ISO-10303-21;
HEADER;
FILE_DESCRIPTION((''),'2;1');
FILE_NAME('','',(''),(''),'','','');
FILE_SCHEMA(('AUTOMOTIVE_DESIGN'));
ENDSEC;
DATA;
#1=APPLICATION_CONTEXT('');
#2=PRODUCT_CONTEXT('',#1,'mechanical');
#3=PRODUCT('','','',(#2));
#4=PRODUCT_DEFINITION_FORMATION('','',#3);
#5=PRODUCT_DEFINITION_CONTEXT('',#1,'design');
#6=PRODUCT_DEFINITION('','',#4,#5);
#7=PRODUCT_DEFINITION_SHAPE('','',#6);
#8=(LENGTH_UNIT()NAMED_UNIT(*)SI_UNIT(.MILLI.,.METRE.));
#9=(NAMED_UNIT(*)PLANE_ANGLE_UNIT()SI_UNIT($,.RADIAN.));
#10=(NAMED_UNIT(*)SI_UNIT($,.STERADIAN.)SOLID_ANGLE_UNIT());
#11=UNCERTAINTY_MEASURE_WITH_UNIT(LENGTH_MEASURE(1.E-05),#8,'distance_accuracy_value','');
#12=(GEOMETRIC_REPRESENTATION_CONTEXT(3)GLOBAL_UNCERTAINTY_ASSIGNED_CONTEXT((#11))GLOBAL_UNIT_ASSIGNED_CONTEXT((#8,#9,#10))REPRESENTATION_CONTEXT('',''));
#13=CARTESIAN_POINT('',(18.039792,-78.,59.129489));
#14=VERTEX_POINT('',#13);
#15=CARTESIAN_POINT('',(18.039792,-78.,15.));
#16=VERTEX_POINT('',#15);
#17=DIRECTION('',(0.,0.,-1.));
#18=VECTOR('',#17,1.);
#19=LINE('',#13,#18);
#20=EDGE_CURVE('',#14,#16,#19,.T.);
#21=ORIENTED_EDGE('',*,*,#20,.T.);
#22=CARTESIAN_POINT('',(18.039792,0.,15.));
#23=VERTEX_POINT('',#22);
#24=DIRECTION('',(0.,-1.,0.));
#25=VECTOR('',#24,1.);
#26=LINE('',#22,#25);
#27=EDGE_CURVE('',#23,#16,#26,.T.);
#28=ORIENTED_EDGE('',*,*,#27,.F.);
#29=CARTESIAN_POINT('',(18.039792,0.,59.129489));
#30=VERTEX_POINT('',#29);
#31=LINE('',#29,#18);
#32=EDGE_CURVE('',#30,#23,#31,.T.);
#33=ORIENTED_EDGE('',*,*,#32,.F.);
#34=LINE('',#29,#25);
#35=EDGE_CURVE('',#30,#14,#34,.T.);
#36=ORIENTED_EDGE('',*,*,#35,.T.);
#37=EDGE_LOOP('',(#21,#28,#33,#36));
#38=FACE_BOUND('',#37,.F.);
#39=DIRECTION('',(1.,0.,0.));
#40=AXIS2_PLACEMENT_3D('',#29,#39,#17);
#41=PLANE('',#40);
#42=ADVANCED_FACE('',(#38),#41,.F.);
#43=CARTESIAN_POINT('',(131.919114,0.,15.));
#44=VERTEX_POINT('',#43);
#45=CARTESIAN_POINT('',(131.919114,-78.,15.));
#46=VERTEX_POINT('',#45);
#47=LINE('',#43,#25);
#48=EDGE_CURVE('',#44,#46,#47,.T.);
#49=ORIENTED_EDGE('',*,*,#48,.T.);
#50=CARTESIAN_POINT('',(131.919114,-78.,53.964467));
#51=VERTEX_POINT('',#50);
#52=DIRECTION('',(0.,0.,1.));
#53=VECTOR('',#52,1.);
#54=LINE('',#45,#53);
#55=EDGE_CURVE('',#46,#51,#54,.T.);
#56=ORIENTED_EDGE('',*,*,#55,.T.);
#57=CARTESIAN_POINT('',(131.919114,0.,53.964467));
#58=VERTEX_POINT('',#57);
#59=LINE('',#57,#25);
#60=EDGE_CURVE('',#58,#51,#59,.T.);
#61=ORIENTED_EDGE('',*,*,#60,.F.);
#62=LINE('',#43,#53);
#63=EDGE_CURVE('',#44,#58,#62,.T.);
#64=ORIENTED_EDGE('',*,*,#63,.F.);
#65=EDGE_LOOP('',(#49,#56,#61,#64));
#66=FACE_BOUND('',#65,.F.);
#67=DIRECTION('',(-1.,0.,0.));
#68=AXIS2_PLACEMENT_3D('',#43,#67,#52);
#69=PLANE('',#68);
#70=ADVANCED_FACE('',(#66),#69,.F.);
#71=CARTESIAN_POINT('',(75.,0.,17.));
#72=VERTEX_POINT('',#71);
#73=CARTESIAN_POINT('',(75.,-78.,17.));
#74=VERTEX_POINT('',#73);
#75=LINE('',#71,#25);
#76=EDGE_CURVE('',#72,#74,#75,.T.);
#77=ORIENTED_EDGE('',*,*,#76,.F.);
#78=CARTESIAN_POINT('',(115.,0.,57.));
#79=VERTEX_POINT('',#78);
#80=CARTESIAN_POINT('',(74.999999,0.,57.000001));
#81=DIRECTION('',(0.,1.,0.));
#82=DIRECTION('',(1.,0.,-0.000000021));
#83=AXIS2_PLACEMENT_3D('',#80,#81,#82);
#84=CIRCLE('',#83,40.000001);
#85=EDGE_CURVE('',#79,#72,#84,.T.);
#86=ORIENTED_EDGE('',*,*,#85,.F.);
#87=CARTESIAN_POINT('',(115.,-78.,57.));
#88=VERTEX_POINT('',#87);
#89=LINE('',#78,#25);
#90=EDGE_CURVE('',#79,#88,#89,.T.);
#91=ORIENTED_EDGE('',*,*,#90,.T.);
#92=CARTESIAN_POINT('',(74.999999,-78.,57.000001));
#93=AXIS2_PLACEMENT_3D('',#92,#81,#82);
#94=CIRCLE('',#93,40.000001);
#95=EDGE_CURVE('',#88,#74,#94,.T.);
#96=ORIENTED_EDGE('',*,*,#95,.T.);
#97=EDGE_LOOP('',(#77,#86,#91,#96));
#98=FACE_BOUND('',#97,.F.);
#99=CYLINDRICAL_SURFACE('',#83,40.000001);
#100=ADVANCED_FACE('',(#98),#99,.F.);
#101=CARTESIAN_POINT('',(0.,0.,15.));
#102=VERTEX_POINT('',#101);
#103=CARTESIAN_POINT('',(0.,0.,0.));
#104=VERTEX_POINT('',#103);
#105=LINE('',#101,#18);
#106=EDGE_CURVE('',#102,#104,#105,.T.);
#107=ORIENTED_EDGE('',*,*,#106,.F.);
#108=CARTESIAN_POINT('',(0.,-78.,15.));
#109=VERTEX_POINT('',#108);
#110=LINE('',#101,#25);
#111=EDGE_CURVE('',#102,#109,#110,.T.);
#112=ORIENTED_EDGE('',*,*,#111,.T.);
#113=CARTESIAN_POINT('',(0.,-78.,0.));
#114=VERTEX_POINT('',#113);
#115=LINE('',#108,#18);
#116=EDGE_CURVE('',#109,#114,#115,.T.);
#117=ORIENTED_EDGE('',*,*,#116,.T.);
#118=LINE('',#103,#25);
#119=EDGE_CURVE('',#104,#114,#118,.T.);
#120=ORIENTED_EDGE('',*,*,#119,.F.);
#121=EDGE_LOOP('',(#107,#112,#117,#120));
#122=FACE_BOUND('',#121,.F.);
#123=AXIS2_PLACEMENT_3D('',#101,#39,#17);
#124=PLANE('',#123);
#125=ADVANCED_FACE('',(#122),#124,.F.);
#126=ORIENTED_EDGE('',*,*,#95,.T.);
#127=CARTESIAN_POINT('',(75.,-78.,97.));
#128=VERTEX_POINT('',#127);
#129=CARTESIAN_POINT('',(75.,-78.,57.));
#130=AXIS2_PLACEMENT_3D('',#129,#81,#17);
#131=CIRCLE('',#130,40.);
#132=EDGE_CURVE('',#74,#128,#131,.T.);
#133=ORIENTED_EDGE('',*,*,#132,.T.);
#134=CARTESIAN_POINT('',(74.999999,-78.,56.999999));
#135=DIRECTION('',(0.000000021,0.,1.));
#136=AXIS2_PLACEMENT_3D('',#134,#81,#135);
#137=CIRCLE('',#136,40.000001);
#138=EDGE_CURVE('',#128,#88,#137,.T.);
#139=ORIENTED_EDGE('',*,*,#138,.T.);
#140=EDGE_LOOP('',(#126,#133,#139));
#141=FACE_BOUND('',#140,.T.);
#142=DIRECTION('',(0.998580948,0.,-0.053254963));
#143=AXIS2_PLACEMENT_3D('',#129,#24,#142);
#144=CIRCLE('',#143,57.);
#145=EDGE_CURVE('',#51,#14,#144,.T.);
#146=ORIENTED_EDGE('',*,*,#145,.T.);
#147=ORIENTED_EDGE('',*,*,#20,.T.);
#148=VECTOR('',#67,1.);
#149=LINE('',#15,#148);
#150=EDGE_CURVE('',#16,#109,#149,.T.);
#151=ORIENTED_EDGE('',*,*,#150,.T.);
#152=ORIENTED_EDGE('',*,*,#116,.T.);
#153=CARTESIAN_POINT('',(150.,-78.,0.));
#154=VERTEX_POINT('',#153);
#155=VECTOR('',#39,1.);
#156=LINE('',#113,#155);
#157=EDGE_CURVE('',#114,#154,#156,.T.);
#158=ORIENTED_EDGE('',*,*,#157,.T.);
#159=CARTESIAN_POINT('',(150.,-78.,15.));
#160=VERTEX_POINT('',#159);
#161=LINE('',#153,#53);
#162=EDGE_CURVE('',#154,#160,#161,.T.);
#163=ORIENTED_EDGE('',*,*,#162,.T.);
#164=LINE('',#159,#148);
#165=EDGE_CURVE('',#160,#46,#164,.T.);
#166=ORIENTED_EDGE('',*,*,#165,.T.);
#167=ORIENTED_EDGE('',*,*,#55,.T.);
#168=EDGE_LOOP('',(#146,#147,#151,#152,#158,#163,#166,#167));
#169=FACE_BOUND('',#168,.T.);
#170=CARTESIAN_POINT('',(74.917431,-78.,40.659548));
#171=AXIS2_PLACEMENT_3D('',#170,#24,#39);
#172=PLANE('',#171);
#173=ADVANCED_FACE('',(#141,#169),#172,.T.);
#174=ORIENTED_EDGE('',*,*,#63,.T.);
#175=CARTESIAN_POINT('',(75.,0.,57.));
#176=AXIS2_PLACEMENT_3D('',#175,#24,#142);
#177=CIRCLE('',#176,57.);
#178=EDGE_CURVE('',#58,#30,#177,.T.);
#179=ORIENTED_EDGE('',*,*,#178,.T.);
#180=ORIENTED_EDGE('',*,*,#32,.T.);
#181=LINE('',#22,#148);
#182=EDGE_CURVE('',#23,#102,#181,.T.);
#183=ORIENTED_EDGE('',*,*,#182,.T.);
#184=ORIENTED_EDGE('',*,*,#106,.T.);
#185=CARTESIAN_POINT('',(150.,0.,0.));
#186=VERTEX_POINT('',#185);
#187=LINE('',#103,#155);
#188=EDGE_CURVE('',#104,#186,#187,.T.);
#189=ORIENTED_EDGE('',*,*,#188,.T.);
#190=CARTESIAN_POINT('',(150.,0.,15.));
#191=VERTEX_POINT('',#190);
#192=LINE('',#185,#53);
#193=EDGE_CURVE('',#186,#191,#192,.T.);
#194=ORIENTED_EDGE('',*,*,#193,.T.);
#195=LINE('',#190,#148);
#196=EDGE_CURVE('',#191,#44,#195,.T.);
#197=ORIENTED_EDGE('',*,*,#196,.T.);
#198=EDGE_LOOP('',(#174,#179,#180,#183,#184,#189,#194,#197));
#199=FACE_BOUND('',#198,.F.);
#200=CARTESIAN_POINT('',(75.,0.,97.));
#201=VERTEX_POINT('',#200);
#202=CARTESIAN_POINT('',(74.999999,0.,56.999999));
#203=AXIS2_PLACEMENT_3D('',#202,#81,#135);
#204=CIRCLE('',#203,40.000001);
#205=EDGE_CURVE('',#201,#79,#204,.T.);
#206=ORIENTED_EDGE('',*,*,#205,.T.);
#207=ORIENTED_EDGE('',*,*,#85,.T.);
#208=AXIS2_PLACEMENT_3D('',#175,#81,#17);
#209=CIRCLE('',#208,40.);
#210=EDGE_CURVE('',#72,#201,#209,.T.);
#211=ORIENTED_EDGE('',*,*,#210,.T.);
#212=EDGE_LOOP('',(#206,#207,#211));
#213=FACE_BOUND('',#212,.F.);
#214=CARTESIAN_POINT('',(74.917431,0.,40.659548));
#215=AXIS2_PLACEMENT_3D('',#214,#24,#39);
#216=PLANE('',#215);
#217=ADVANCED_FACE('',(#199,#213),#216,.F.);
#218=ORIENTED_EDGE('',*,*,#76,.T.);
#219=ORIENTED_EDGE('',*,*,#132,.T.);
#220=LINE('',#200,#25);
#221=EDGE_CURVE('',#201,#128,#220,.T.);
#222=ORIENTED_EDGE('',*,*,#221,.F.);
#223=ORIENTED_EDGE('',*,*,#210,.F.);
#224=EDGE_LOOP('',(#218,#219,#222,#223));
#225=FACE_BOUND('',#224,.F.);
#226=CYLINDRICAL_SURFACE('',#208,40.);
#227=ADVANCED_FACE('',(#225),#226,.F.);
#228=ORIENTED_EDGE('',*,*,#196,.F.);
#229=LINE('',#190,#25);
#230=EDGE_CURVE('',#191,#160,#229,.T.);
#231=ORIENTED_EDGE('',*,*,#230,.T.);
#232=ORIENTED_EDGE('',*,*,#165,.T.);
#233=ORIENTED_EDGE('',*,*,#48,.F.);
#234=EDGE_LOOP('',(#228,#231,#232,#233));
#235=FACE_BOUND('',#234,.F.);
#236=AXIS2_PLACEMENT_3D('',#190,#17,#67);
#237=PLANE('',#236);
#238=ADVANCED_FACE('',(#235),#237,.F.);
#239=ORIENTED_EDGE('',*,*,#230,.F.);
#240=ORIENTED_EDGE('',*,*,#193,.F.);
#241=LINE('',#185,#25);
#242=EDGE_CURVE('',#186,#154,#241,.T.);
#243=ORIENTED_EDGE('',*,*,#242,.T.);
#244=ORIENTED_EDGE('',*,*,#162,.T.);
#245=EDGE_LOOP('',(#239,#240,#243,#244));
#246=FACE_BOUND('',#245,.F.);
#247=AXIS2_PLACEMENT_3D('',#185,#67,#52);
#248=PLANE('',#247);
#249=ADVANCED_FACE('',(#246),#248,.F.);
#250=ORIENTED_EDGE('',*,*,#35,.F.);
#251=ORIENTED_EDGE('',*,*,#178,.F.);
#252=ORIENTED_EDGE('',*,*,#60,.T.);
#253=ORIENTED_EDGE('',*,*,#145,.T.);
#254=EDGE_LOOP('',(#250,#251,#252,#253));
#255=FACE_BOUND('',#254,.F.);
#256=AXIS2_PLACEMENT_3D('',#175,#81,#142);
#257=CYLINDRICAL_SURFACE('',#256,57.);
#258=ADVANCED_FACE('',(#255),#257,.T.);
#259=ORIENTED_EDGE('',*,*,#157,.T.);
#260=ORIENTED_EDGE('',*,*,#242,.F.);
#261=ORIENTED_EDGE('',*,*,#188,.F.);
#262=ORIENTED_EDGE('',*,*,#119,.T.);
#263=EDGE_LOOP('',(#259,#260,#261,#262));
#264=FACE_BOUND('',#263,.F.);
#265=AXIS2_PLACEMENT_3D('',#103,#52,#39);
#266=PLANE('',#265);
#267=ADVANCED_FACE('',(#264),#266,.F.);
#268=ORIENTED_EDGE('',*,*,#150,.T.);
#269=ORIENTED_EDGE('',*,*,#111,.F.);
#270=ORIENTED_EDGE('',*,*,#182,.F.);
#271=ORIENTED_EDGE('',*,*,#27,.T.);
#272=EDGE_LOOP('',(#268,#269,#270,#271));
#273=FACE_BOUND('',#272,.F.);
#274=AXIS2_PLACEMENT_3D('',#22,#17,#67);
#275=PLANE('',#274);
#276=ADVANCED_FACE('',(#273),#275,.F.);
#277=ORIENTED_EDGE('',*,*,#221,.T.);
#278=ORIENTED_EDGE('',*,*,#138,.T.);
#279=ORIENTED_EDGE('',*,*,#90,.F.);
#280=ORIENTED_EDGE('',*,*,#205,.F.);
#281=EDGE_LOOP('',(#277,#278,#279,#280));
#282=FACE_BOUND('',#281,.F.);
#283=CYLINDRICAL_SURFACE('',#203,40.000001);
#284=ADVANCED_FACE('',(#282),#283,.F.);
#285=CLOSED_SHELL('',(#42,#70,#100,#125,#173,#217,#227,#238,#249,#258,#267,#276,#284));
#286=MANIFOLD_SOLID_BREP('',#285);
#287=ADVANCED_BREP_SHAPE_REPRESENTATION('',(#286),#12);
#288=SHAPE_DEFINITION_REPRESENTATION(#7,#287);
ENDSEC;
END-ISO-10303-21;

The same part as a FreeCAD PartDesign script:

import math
import FreeCAD as App
import Part
import Sketcher

V = App.Vector

doc = App.newDocument("Part")
body = doc.addObject("PartDesign::Body", "Body")

# Sketch on XZ plane
sketch1 = body.newObject("Sketcher::SketchObject", "Sketch")
sketch1.AttachmentSupport = (doc.getObject("XZ_Plane"), [""])
sketch1.MapMode = "FlatFace"
sketch1.addGeometry(Part.LineSegment(V(0, 15, 0), V(0, 0, 0)), False)
sketch1.addGeometry(Part.LineSegment(V(0, 0, 0), V(150, 0, 0)), False)
sketch1.addGeometry(Part.LineSegment(V(150, 0, 0), V(150, 15, 0)), False)
sketch1.addGeometry(Part.LineSegment(V(150, 15, 0), V(132, 15, 0)), False)
sketch1.addGeometry(Part.LineSegment(V(132, 15, 0), V(132, 54, 0)), False)
sketch1.addGeometry(Part.ArcOfCircle(Part.Circle(V(75, 57, 0), V(0, 0, 1), 57), math.radians(-3), math.radians(178)), False)
sketch1.addGeometry(Part.LineSegment(V(18, 59, 0), V(18, 15, 0)), False)
sketch1.addGeometry(Part.LineSegment(V(18, 15, 0), V(0, 15, 0)), False)
sketch1.addGeometry(Part.ArcOfCircle(Part.Circle(V(75, 57, 0), V(0, 0, 1), 40), math.radians(0), math.radians(90)), False)
sketch1.addGeometry(Part.ArcOfCircle(Part.Circle(V(75, 57, 0), V(0, 0, 1), 40), math.radians(-90), math.radians(0)), False)
sketch1.addGeometry(Part.ArcOfCircle(Part.Circle(V(75, 57, 0), V(0, 0, 1), 40), math.radians(90), math.radians(270)), False)
sketch1.addConstraint(Sketcher.Constraint("Coincident", 0, 2, 1, 1))
sketch1.addConstraint(Sketcher.Constraint("Coincident", 1, 2, 2, 1))
sketch1.addConstraint(Sketcher.Constraint("Coincident", 2, 2, 3, 1))
sketch1.addConstraint(Sketcher.Constraint("Coincident", 3, 2, 4, 1))
sketch1.addConstraint(Sketcher.Constraint("Coincident", 4, 2, 5, 1))
sketch1.addConstraint(Sketcher.Constraint("Coincident", 5, 2, 6, 1))
sketch1.addConstraint(Sketcher.Constraint("Coincident", 6, 2, 7, 1))
sketch1.addConstraint(Sketcher.Constraint("Coincident", 7, 2, 0, 1))
sketch1.addConstraint(Sketcher.Constraint("Tangent", 8, 1, 9, 2))
sketch1.addConstraint(Sketcher.Constraint("Tangent", 9, 1, 10, 2))
sketch1.addConstraint(Sketcher.Constraint("Tangent", 10, 1, 8, 2))
sketch1.addConstraint(Sketcher.Constraint("Vertical", 0))
sketch1.addConstraint(Sketcher.Constraint("Horizontal", 1))
sketch1.addConstraint(Sketcher.Constraint("Vertical", 2))
sketch1.addConstraint(Sketcher.Constraint("Horizontal", 3))
sketch1.addConstraint(Sketcher.Constraint("Vertical", 4))
sketch1.addConstraint(Sketcher.Constraint("Vertical", 6))
sketch1.addConstraint(Sketcher.Constraint("Horizontal", 7))
sketch1.addConstraint(Sketcher.Constraint("Coincident", 0, 2, -1, 1))
sketch1.addConstraint(Sketcher.Constraint("Coincident", 8, 3, 5, 3))
sketch1.addConstraint(Sketcher.Constraint("Horizontal", 3, 2, 6, 2))
sketch1.addConstraint(Sketcher.Constraint("Horizontal", 10, 3, 8, 1))
sketch1.addConstraint(Sketcher.Constraint("Vertical", 10, 3, 9, 1))
sketch1.addConstraint(Sketcher.Constraint("Vertical", 9, 1, 10, 1))
sketch1.addConstraint(Sketcher.Constraint("Radius", 5, 57.0))
sketch1.addConstraint(Sketcher.Constraint("Radius", 8, 40.000001))
sketch1.addConstraint(Sketcher.Constraint("DistanceX", 1, 1, 1, 2, 150.0))
sketch1.addConstraint(Sketcher.Constraint("DistanceY", 0, 2, 0, 1, 15.0))
sketch1.addConstraint(Sketcher.Constraint("DistanceX", -1, 1, 5, 3, 75.0))
sketch1.addConstraint(Sketcher.Constraint("DistanceY", -1, 1, 5, 3, 57.0))
sketch1.addConstraint(Sketcher.Constraint("DistanceX", 7, 2, 7, 1, 18.039792))
sketch1.addConstraint(Sketcher.Constraint("DistanceX", 3, 2, 3, 1, 18.080886))
pad1 = body.newObject("PartDesign::Pad", "Pad")
pad1.Profile = sketch1
pad1.Length = 78

doc.recompute()
